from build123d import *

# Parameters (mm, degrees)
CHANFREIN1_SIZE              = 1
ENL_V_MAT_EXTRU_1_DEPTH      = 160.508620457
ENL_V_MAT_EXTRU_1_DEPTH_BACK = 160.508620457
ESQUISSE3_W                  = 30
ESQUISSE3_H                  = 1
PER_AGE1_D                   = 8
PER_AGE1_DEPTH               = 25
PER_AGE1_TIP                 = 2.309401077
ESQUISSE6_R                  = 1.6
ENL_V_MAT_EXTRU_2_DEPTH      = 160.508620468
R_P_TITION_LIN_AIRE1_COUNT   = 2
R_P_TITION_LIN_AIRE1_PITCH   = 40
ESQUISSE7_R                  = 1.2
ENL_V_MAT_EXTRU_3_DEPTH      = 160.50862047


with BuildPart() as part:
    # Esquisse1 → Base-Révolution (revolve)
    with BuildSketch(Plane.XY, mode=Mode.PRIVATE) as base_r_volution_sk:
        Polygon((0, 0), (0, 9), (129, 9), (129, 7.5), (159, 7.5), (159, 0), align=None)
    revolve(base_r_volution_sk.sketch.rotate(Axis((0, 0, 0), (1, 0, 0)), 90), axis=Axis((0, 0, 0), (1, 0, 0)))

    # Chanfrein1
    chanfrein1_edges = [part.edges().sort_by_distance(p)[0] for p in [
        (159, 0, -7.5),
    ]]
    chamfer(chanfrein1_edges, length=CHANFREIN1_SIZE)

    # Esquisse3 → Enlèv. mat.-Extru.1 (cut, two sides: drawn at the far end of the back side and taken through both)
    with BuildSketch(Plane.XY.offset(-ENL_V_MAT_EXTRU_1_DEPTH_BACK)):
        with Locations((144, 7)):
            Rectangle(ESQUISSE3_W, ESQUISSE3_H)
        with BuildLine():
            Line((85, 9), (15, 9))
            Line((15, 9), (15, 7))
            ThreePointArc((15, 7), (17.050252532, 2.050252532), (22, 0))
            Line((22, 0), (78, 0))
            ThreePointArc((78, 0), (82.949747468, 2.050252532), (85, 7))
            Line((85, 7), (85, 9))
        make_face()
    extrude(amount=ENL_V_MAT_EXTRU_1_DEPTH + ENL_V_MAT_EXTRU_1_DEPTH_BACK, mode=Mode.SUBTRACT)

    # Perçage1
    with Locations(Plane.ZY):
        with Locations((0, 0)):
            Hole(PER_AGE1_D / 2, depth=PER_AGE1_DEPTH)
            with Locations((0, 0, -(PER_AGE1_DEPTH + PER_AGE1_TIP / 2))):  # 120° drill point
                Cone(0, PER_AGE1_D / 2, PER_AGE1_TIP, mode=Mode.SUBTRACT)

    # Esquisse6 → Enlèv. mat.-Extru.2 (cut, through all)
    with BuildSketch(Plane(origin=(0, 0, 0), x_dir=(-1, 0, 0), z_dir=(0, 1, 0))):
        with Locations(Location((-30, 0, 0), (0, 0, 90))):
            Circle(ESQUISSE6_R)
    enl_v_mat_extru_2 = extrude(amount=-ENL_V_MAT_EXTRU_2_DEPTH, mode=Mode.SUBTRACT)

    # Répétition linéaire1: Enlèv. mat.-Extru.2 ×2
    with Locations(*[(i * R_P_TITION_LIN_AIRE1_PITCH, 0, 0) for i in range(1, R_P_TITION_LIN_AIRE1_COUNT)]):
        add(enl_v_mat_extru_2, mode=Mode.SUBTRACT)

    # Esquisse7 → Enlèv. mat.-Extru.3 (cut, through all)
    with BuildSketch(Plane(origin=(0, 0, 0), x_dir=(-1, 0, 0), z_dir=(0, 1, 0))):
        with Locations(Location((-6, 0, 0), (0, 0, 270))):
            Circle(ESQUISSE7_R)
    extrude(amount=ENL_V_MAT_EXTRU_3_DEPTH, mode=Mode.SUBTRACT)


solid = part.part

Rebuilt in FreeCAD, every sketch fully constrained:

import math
import FreeCAD as App
import Part
import Sketcher

V = App.Vector
Q = App.Units.Quantity


def edges_at(feature, points):
    """Names of the edges that pass closest to the given points."""
    edges = feature.Shape.Edges
    near = lambda p: min(range(len(edges)), key=lambda i: edges[i].distToShape(Part.Vertex(*p))[0])
    return sorted({f"Edge{near(p) + 1}" for p in points})

doc = App.newDocument("Part")
body = doc.addObject("PartDesign::Body", "Body")

sketch1 = doc.addObject("Sketcher::SketchObject", "Sketch")
body.addObject(sketch1)
sketch1.AttachmentSupport = (doc.XY_Plane, [""])
sketch1.MapMode = "FlatFace"
sketch1.addGeometry([
    Part.LineSegment(V(0, 9, 0), V(0, 0, 0)),
    Part.LineSegment(V(0, 0, 0), V(159, 0, 0)),
    Part.LineSegment(V(159, 0, 0), V(159, 7.5, 0)),
    Part.LineSegment(V(159, 7.5, 0), V(129, 7.5, 0)),
    Part.LineSegment(V(129, 7.5, 0), V(129, 9, 0)),
    Part.LineSegment(V(129, 9, 0), V(0, 9, 0)),
], False)
sketch1.addConstraint([
    Sketcher.Constraint("Coincident", 0, 2, 1, 1),
    Sketcher.Constraint("Coincident", 1, 2, 2, 1),
    Sketcher.Constraint("Coincident", 2, 2, 3, 1),
    Sketcher.Constraint("Coincident", 3, 2, 4, 1),
    Sketcher.Constraint("Coincident", 4, 2, 5, 1),
    Sketcher.Constraint("Coincident", 5, 2, 0, 1),
    Sketcher.Constraint("Vertical", 0),
    Sketcher.Constraint("Horizontal", 1),
    Sketcher.Constraint("Vertical", 2),
    Sketcher.Constraint("Horizontal", 3),
    Sketcher.Constraint("Vertical", 4),
    Sketcher.Constraint("Horizontal", 5),
    Sketcher.Constraint("Coincident", 0, 2, -1, 1),
    Sketcher.Constraint("DistanceX", 1, 1, 1, 2, Q("159 mm")),
    Sketcher.Constraint("DistanceX", 3, 2, 3, 1, Q("30 mm")),
    Sketcher.Constraint("DistanceY", 0, 2, 0, 1, Q("9 mm")),
    Sketcher.Constraint("DistanceY", 2, 1, 2, 2, Q("7.5 mm")),
])
revolution = doc.addObject("PartDesign::Revolution", "Revolution")
body.addObject(revolution)
revolution.Profile = sketch1
revolution.ReferenceAxis = (sketch1, ["H_Axis"])
revolution.Angle = 360
doc.recompute()

chamfer = doc.addObject("PartDesign::Chamfer", "Chamfer")
body.addObject(chamfer)
chamfer.Base = (revolution, edges_at(revolution, [(159, 0, -7.5)]))
chamfer.Size = 1

sketch2 = doc.addObject("Sketcher::SketchObject", "Sketch001")
body.addObject(sketch2)
sketch2.AttachmentSupport = (doc.XY_Plane, [""])
sketch2.MapMode = "FlatFace"
sketch2.addGeometry([
    Part.LineSegment(V(129, 7.5, 0), V(129, 6.5, 0)),
    Part.LineSegment(V(129, 6.5, 0), V(159, 6.5, 0)),
    Part.LineSegment(V(159, 6.5, 0), V(159, 7.5, 0)),
    Part.LineSegment(V(159, 7.5, 0), V(129, 7.5, 0)),
    Part.LineSegment(V(85, 9, 0), V(15, 9, 0)),
    Part.LineSegment(V(15, 9, 0), V(15, 7, 0)),
    Part.ArcOfCircle(Part.Circle(V(22, 7, 0), V(0, 0, 1), 7), math.radians(-180), math.radians(-90)),
    Part.LineSegment(V(22, 0, 0), V(78, 0, 0)),
    Part.ArcOfCircle(Part.Circle(V(78, 7, 0), V(0, 0, 1), 7), math.radians(-90), math.radians(0)),
    Part.LineSegment(V(85, 7, 0), V(85, 9, 0)),
], False)
sketch2.addConstraint([
    Sketcher.Constraint("Coincident", 0, 2, 1, 1),
    Sketcher.Constraint("Coincident", 1, 2, 2, 1),
    Sketcher.Constraint("Coincident", 2, 2, 3, 1),
    Sketcher.Constraint("Coincident", 3, 2, 0, 1),
    Sketcher.Constraint("Coincident", 4, 2, 5, 1),
    Sketcher.Constraint("Tangent", 5, 2, 6, 1),
    Sketcher.Constraint("Tangent", 6, 2, 7, 1),
    Sketcher.Constraint("Tangent", 7, 2, 8, 1),
    Sketcher.Constraint("Tangent", 8, 2, 9, 1),
    Sketcher.Constraint("Coincident", 9, 2, 4, 1),
    Sketcher.Constraint("Vertical", 0),
    Sketcher.Constraint("Horizontal", 1),
    Sketcher.Constraint("Vertical", 2),
    Sketcher.Constraint("Horizontal", 3),
    Sketcher.Constraint("Horizontal", 4),
    Sketcher.Constraint("Vertical", 5),
    Sketcher.Constraint("Horizontal", 7),
    Sketcher.Constraint("Vertical", 9),
    Sketcher.Constraint("Equal", 6, 8),
    Sketcher.Constraint("PointOnObject", 6, 2, -1),
    Sketcher.Constraint("Radius", 6, Q("7 mm")),
    Sketcher.Constraint("DistanceX", 1, 1, 1, 2, Q("30 mm")),
    Sketcher.Constraint("DistanceX", 4, 2, 4, 1, Q("70 mm")),
    Sketcher.Constraint("DistanceY", 0, 2, 0, 1, Q("1 mm")),
    Sketcher.Constraint("DistanceY", 5, 2, 5, 1, Q("2 mm")),
    Sketcher.Constraint("DistanceX", -1, 1, 6, 3, Q("22 mm")),
    Sketcher.Constraint("DistanceX", -1, 1, 0, 2, Q("129 mm")),
    Sketcher.Constraint("DistanceY", -1, 1, 0, 2, Q("6.5 mm")),
])
pocket1 = doc.addObject("PartDesign::Pocket", "Pocket")
body.addObject(pocket1)
pocket1.Profile = sketch2
pocket1.Type = "ThroughAll"
pocket1.Midplane = True

sketch3 = doc.addObject("Sketcher::SketchObject", "Sketch002")
body.addObject(sketch3)
sketch3.AttachmentSupport = (doc.YZ_Plane, [""])
sketch3.MapMode = "FlatFace"
sketch3.addGeometry(Part.Circle(V(0, 0, 0), V(0, 0, 1), 4), False)
sketch3.addConstraint([
    Sketcher.Constraint("Coincident", 0, 3, -1, 1),
    Sketcher.Constraint("Diameter", 0, Q("8 mm")),
])
doc.recompute()
hole = doc.addObject("PartDesign::Hole", "Hole")
body.addObject(hole)
hole.Profile = sketch3
hole.ThreadType = "None"
hole.Diameter = 8
hole.DepthType = "Dimension"
hole.Depth = 25
hole.DrillPoint = "Angled"
hole.DrillPointAngle = 120
hole.Reversed = True

sketch4 = doc.addObject("Sketcher::SketchObject", "Sketch003")
body.addObject(sketch4)
sketch4.AttachmentSupport = (doc.XZ_Plane, [""])
sketch4.MapMode = "FlatFace"
sketch4.addGeometry(Part.Circle(V(30, 0, 0), V(0, 0, 1), 1.6), False)
sketch4.addConstraint([
    Sketcher.Constraint("PointOnObject", 0, 3, -1),
    Sketcher.Constraint("Diameter", 0, Q("3.2 mm")),
    Sketcher.Constraint("DistanceX", -1, 1, 0, 3, Q("30 mm")),
])
pocket2 = doc.addObject("PartDesign::Pocket", "Pocket001")
body.addObject(pocket2)
pocket2.Profile = sketch4
pocket2.Type = "ThroughAll"
pocket2.Reversed = True
doc.recompute()

linearpattern = doc.addObject("PartDesign::LinearPattern", "LinearPattern")
body.addObject(linearpattern)
linearpattern.Originals = [pocket2]
linearpattern.Direction = (doc.X_Axis, [""])
linearpattern.Mode = "offset"
linearpattern.Offset = 40
linearpattern.Occurrences = 2
body.Tip = linearpattern

sketch5 = doc.addObject("Sketcher::SketchObject", "Sketch004")
body.addObject(sketch5)
sketch5.AttachmentSupport = (doc.XZ_Plane, [""])
sketch5.MapMode = "FlatFace"
sketch5.addGeometry(Part.Circle(V(6, 0, 0), V(0, 0, 1), 1.2), False)
sketch5.addConstraint([
    Sketcher.Constraint("PointOnObject", 0, 3, -1),
    Sketcher.Constraint("Diameter", 0, Q("2.4 mm")),
    Sketcher.Constraint("DistanceX", -1, 1, 0, 3, Q("6 mm")),
])
pocket3 = doc.addObject("PartDesign::Pocket", "Pocket002")
body.addObject(pocket3)
pocket3.Profile = sketch5
pocket3.Type = "ThroughAll"

doc.recompute()
